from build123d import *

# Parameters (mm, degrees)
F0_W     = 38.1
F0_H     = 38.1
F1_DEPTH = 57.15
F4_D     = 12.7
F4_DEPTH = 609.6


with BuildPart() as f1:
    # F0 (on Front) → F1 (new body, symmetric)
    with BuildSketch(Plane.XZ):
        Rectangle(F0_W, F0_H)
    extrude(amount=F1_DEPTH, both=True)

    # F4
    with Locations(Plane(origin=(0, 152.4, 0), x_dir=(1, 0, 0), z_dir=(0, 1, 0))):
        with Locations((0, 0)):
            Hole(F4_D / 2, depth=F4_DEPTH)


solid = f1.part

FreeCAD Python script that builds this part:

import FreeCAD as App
import Part
import Sketcher
from FreeCAD import Vector
Q = App.Units.Quantity

doc = App.newDocument("Part")
params = doc.addObject("Spreadsheet::Sheet", "Params")
for row, (alias, value) in enumerate([
    ("sketch1_width", "1.5 in"),
    ("pad1_length", "4.5 in"),
    ("sketch2_diameter", "0.5 in"),
    ("hole_diameter", "0.5 in"),
    ("hole_depth", "24 in"),
], start=1):
    params.set(f"A{row}", alias)
    params.set(f"B{row}", "=" + value)
    params.setAlias(f"B{row}", alias)

body = doc.addObject("PartDesign::Body", "Body")

sketch1 = body.newObject("Sketcher::SketchObject", "Sketch")
sketch1.AttachmentSupport = (doc.getObject("XZ_Plane"), [""])
sketch1.MapMode = "FlatFace"
sketch1.addGeometry(Part.LineSegment(Vector(-19, 19, 0), Vector(-19, -19, 0)), False)
sketch1.addGeometry(Part.LineSegment(Vector(-19, -19, 0), Vector(19, -19, 0)), False)
sketch1.addGeometry(Part.LineSegment(Vector(19, -19, 0), Vector(19, 19, 0)), False)
sketch1.addGeometry(Part.LineSegment(Vector(19, 19, 0), Vector(-19, 19, 0)), False)
sketch1.addConstraint(Sketcher.Constraint("Coincident", 0, 2, 1, 1))
sketch1.addConstraint(Sketcher.Constraint("Coincident", 1, 2, 2, 1))
sketch1.addConstraint(Sketcher.Constraint("Coincident", 2, 2, 3, 1))
sketch1.addConstraint(Sketcher.Constraint("Coincident", 3, 2, 0, 1))
sketch1.addConstraint(Sketcher.Constraint("Vertical", 0))
sketch1.addConstraint(Sketcher.Constraint("Horizontal", 1))
sketch1.addConstraint(Sketcher.Constraint("Vertical", 2))
sketch1.addConstraint(Sketcher.Constraint("Horizontal", 3))
sketch1.addConstraint(Sketcher.Constraint("Symmetric", 0, 2, 2, 2, -1, 1))
sketch1.addConstraint(Sketcher.Constraint("Equal", 3, 0))
sketch1.addConstraint(Sketcher.Constraint("DistanceX", 1, 1, 1, 2, Q("1.5 in")))
sketch1.setExpression("Constraints[10]", "Params.sketch1_width")
pad1 = body.newObject("PartDesign::Pad", "Pad")
pad1.Profile = sketch1
pad1.setExpression("Length", "Params.pad1_length")
pad1.Midplane = True

sketch2 = body.newObject("Sketcher::SketchObject", "Sketch001")
sketch2.AttachmentSupport = (doc.getObject("XZ_Plane"), [""])
sketch2.MapMode = "FlatFace"
sketch2.AttachmentOffset = App.Placement(Vector(0, 0, -6 * 25.4), App.Rotation())
sketch2.addGeometry(Part.Circle(Vector(0, 0, 0), Vector(0, 0, 1), 6), False)
sketch2.addConstraint(Sketcher.Constraint("Coincident", 0, 3, -1, 1))
sketch2.addConstraint(Sketcher.Constraint("Diameter", 0, Q("0.5 in")))
sketch2.setExpression("Constraints[1]", "Params.sketch2_diameter")
doc.recompute()
hole = body.newObject("PartDesign::Hole", "Hole")
hole.Profile = sketch2
hole.ThreadType = "None"
hole.setExpression("Diameter", "Params.hole_diameter")
hole.DepthType = "Dimension"
hole.setExpression("Depth", "Params.hole_depth")
hole.DrillPoint = "Flat"
hole.Reversed = True

doc.recompute()
